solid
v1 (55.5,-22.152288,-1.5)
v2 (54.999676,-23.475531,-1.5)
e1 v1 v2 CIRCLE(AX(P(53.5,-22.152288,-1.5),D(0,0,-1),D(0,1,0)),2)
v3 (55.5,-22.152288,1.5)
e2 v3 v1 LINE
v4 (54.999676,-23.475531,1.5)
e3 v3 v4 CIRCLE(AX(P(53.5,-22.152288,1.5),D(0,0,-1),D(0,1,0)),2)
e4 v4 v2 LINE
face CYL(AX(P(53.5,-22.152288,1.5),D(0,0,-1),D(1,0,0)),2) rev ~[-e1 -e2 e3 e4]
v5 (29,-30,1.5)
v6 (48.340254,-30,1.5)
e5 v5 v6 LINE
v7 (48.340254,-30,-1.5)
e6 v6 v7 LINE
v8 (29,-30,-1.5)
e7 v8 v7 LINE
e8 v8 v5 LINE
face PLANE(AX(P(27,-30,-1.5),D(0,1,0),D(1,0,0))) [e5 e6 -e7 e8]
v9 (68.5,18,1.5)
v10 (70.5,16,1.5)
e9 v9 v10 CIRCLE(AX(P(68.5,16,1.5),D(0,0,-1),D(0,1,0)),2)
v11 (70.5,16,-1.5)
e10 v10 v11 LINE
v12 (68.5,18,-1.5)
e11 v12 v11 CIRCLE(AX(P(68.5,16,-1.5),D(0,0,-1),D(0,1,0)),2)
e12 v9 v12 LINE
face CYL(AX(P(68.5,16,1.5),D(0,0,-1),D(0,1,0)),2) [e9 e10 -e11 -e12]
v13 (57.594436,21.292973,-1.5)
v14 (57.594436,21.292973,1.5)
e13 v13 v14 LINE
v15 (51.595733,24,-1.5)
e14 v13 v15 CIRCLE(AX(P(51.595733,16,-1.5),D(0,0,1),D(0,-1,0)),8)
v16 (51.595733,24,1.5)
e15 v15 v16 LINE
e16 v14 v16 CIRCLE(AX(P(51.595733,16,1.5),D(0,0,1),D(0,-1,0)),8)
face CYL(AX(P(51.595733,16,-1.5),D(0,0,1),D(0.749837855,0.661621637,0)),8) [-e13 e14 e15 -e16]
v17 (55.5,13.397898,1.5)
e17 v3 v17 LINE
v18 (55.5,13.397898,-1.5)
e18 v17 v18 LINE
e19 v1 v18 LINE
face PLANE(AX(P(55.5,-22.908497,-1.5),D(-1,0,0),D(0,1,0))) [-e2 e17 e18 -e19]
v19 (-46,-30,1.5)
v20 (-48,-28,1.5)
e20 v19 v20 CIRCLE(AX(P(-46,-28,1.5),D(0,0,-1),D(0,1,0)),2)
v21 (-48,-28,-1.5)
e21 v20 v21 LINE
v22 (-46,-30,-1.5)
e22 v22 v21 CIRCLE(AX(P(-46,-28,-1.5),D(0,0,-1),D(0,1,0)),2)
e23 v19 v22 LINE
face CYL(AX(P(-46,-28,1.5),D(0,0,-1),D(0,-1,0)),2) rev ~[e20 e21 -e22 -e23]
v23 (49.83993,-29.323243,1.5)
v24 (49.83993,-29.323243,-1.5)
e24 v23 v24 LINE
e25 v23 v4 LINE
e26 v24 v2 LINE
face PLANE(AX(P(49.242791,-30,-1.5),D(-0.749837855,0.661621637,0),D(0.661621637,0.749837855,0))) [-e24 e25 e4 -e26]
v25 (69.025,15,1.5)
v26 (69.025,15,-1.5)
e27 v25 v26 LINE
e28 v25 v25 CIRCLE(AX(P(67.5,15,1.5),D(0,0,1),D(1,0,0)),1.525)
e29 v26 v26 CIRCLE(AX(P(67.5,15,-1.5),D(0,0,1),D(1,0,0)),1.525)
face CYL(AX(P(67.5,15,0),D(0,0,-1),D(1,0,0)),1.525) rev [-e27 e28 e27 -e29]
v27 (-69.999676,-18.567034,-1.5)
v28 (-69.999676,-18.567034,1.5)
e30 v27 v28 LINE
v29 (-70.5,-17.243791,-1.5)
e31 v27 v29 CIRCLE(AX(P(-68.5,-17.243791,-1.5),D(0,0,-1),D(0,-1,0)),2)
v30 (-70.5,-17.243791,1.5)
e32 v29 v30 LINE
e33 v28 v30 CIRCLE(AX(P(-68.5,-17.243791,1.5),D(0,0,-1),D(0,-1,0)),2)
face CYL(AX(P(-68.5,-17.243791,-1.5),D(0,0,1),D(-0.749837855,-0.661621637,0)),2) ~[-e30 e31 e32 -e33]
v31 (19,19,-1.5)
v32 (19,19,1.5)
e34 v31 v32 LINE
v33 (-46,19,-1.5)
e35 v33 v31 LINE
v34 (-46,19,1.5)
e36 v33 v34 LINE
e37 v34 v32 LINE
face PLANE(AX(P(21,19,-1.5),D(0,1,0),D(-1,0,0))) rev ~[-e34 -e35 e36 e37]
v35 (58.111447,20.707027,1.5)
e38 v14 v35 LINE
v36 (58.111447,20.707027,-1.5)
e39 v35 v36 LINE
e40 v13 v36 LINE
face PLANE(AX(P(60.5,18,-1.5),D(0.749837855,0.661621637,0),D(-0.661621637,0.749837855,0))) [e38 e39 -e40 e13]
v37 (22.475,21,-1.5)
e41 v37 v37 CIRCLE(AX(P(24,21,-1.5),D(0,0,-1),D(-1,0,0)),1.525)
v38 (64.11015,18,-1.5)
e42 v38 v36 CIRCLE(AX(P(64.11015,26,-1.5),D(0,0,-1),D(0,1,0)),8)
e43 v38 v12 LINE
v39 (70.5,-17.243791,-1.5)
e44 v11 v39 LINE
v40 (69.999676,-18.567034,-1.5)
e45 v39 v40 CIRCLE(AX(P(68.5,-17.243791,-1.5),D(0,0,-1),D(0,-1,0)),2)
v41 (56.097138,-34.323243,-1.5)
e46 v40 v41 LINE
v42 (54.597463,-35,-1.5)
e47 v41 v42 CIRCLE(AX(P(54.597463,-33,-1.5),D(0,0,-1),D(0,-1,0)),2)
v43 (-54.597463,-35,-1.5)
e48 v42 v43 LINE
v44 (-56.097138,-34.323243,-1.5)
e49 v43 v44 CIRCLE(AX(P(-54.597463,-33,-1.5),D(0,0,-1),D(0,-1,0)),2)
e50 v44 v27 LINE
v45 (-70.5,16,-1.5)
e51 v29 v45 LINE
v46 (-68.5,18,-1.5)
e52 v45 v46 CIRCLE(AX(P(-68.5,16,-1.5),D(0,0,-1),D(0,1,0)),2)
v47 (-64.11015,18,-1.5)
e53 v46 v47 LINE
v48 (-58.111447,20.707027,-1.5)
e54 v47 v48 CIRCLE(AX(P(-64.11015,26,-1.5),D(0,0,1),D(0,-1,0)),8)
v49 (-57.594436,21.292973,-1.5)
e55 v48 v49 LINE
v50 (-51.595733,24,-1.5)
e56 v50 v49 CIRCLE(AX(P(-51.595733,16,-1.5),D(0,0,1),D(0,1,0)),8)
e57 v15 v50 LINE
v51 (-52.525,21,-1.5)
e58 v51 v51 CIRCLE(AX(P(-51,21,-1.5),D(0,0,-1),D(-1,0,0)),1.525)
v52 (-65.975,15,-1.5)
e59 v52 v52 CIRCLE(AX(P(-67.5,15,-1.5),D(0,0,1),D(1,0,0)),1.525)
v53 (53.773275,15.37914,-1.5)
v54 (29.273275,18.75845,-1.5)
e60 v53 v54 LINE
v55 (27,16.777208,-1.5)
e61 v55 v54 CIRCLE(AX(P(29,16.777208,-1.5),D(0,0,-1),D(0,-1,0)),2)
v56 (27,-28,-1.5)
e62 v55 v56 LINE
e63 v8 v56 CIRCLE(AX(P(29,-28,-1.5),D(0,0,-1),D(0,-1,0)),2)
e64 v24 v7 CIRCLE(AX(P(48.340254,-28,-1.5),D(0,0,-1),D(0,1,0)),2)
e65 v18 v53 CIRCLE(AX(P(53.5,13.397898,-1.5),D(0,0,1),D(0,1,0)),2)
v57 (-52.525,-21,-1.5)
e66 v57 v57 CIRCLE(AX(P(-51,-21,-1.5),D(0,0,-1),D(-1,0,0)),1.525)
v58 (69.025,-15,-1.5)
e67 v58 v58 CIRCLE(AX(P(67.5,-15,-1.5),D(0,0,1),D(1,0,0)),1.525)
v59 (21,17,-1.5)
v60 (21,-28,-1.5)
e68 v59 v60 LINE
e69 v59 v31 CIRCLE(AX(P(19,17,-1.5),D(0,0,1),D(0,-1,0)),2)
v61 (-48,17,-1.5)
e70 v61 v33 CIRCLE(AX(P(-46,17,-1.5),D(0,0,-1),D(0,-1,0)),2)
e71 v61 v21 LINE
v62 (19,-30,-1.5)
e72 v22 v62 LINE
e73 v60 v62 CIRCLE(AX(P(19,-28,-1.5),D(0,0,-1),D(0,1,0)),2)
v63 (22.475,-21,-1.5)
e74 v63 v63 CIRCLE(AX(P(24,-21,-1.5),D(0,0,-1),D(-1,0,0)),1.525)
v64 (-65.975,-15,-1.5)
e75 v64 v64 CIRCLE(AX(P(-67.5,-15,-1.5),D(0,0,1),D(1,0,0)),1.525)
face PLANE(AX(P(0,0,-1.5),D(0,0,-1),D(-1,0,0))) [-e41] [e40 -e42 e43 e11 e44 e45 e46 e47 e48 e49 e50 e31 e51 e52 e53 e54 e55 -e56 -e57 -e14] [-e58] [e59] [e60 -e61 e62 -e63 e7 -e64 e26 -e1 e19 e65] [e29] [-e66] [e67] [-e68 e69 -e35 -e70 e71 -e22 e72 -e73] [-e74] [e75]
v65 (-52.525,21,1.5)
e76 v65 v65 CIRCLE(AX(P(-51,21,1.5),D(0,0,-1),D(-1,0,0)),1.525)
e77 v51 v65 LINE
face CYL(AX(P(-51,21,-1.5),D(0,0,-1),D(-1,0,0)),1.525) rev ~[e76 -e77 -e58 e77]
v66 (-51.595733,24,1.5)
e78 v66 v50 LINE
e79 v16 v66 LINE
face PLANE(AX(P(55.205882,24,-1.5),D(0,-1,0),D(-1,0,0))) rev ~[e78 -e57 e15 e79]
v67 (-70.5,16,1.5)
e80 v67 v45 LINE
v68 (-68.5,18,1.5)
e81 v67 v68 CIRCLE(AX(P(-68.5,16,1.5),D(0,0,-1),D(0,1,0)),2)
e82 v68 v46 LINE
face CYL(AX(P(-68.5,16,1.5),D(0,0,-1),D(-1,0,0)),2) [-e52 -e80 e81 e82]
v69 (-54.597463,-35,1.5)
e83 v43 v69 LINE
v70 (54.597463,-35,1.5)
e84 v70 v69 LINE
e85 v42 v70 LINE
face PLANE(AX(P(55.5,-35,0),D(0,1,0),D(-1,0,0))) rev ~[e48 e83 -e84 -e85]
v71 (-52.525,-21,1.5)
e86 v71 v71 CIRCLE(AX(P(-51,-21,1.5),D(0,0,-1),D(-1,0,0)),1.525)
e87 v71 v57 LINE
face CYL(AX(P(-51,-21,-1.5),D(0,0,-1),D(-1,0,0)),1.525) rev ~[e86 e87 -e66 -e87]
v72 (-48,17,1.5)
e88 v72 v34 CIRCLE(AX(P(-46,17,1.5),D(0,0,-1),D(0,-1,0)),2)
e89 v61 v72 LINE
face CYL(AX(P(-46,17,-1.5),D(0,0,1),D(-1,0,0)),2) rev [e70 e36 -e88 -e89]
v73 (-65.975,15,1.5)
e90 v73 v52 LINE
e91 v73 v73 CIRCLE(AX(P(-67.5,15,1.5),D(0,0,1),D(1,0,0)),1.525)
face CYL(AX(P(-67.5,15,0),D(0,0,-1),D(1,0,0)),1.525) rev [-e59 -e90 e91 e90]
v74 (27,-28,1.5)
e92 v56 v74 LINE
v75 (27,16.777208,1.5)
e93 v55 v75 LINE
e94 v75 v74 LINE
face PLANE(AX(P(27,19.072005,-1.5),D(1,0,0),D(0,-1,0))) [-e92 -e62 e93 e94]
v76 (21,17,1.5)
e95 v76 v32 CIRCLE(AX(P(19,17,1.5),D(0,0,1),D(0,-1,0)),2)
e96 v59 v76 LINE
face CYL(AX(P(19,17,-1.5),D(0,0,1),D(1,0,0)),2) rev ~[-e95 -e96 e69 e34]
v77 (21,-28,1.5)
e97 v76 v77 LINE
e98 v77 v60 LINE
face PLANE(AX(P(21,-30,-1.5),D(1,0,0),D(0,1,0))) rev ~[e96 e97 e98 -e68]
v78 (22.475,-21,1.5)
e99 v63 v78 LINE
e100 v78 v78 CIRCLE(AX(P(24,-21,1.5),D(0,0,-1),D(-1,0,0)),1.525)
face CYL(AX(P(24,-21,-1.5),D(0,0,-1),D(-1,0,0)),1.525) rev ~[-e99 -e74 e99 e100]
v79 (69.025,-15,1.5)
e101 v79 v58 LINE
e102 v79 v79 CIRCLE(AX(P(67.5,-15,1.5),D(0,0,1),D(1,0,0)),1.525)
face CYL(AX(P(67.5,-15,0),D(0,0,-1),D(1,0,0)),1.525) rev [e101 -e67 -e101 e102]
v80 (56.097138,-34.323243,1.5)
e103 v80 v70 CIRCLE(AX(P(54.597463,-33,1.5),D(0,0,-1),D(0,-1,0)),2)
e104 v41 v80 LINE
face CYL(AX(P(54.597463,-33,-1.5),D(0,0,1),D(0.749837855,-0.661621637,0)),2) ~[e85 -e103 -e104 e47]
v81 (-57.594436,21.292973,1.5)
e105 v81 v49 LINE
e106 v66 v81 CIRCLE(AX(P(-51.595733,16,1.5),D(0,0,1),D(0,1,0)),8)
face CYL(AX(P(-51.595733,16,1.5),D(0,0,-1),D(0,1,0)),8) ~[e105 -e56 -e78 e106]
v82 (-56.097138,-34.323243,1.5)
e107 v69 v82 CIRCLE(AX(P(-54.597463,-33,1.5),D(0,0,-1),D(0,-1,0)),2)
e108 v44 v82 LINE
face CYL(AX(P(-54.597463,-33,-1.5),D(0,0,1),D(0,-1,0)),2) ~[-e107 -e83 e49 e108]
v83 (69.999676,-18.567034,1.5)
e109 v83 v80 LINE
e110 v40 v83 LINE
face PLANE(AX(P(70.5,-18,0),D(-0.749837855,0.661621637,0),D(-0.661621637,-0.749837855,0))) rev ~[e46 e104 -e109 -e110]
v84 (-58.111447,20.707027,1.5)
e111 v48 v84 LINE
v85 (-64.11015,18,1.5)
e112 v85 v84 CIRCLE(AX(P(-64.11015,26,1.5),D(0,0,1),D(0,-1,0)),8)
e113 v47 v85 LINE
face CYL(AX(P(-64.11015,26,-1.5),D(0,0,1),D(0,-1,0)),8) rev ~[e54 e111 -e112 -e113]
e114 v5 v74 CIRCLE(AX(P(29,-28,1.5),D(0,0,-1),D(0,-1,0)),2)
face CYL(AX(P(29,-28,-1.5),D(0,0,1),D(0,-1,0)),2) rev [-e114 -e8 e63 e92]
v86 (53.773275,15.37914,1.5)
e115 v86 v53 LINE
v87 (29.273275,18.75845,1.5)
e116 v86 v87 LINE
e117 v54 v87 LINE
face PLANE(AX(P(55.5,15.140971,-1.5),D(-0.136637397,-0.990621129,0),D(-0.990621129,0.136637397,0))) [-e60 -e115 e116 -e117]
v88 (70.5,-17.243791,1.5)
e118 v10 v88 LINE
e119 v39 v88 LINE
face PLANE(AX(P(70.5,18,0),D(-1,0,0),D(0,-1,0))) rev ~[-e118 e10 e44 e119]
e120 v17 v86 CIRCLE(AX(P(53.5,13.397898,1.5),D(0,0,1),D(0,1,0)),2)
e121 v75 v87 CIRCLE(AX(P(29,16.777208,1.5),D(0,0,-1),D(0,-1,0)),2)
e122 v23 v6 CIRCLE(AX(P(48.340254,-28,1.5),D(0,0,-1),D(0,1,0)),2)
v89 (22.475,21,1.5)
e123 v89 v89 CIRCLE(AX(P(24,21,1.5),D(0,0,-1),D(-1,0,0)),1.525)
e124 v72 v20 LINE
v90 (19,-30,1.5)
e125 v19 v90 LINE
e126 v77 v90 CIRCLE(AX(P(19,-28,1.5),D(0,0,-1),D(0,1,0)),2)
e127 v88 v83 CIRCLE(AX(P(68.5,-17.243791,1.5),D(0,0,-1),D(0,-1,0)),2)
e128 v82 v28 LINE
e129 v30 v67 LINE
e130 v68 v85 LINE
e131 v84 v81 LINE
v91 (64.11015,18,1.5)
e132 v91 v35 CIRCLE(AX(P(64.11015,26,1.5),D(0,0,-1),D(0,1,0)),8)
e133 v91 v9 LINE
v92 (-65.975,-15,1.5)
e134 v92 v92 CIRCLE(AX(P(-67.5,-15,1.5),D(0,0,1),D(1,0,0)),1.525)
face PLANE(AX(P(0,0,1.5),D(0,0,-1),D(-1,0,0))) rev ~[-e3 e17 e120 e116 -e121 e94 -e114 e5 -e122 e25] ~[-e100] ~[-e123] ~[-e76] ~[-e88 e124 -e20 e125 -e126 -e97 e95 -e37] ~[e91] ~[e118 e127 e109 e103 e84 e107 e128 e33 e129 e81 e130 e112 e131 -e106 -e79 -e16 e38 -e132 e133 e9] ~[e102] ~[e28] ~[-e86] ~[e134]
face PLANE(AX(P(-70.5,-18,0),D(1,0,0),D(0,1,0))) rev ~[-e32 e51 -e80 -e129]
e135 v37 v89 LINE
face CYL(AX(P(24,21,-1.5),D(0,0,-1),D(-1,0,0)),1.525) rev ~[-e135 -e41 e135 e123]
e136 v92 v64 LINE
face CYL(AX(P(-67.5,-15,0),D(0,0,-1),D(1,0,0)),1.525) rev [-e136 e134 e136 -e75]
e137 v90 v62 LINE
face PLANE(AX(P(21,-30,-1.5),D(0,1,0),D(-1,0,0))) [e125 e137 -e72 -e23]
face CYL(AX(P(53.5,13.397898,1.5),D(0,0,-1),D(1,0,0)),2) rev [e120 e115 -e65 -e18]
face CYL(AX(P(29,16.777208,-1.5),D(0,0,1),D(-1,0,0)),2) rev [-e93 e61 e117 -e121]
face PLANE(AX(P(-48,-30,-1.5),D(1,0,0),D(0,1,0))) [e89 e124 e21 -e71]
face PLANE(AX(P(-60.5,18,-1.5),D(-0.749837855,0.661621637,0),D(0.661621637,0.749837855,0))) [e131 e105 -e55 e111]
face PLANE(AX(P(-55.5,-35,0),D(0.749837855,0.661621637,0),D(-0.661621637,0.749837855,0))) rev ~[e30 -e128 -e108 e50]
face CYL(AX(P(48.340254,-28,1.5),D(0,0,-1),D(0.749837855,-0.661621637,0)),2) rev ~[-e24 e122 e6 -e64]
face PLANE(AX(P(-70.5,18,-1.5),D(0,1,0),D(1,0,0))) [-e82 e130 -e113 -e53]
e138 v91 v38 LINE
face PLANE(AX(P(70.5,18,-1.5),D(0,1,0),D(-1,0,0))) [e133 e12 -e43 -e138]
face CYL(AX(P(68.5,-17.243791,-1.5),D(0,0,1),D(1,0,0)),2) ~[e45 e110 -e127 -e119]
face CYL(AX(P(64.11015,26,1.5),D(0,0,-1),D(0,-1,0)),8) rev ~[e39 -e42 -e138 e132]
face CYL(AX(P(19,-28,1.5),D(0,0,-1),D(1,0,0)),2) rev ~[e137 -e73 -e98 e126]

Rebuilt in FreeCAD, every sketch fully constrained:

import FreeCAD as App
import Part
import Sketcher
from FreeCAD import Vector
Q = App.Units.Quantity


def edges_at(feature, points):
    """Names of the edges that pass closest to the given points."""
    edges = feature.Shape.Edges
    near = lambda p: min(range(len(edges)), key=lambda i: edges[i].distToShape(Part.Vertex(*p))[0])
    return sorted({f"Edge{near(p) + 1}" for p in points})


def add_polygon(sketch, points):
    """Adds a closed chain of lines whose ends are joined by coincident constraints."""
    first, n = sketch.GeometryCount, len(points)
    for a, b in zip(points, points[1:] + points[:1]):
        sketch.addGeometry(Part.LineSegment(App.Vector(*a, 0), App.Vector(*b, 0)), False)
    for i in range(n):
        sketch.addConstraint(Sketcher.Constraint("Coincident", first + i, 2, first + (i + 1) % n, 1))

doc = App.newDocument("Part")
body = doc.addObject("PartDesign::Body", "Body")

sketch1 = doc.addObject("Sketcher::SketchObject", "Sketch")
body.addObject(sketch1)
sketch1.AttachmentSupport = (doc.XY_Plane, [""])
sketch1.MapMode = "FlatFace"
add_polygon(sketch1, [(-70.5, 18), (-70.5, -18), (-55.5, -35), (55.5, -35), (70.5, -18), (70.5, 18), (55.5, 35), (-55.5, 35)])
sketch1.addGeometry(Part.Circle(Vector(67.5, -15, 0), Vector(0, 0, 1), 1.5), False)
sketch1.addGeometry(Part.Circle(Vector(-67.5, -15, 0), Vector(0, 0, 1), 1.5), False)
sketch1.addGeometry(Part.Circle(Vector(67.5, 15, 0), Vector(0, 0, 1), 1.5), False)
sketch1.addGeometry(Part.Circle(Vector(-67.5, 15, 0), Vector(0, 0, 1), 1.5), False)
sketch1.addConstraint([
    Sketcher.Constraint("Vertical", 0),
    Sketcher.Constraint("Horizontal", 2),
    Sketcher.Constraint("Vertical", 4),
    Sketcher.Constraint("Horizontal", 6),
    Sketcher.Constraint("Equal", 8, 9),
    Sketcher.Constraint("Equal", 9, 10),
    Sketcher.Constraint("Equal", 10, 11),
    Sketcher.Constraint("Symmetric", 9, 3, 10, 3, -1, 1),
    Sketcher.Constraint("Symmetric", 8, 3, 11, 3, -1, 1),
    Sketcher.Constraint("Symmetric", 0, 2, 4, 2, -1, 1),
    Sketcher.Constraint("Symmetric", 1, 2, 5, 2, -1, 1),
    Sketcher.Constraint("Symmetric", 8, 3, 9, 3, -2),
    Sketcher.Constraint("Parallel", 3, 7),
    Sketcher.Constraint("Horizontal", 0, 2, 3, 2),
    Sketcher.Constraint("Horizontal", 4, 2, 7, 2),
    Sketcher.Constraint("Vertical", 2, 2, 5, 2),
    Sketcher.Constraint("Diameter", 8, Q("3.05 mm")),
    Sketcher.Constraint("DistanceX", 2, 1, 2, 2, Q("111 mm")),
    Sketcher.Constraint("DistanceY", 0, 2, 0, 1, Q("36 mm")),
    Sketcher.Constraint("DistanceY", 8, 3, -1, 1, Q("15 mm")),
    Sketcher.Constraint("DistanceY", 1, 2, -1, 1, Q("35 mm")),
    Sketcher.Constraint("DistanceX", 9, 3, 8, 3, Q("135 mm")),
    Sketcher.Constraint("DistanceX", 0, 2, 9, 3, Q("3 mm")),
])
pad1 = doc.addObject("PartDesign::Pad", "Pad")
body.addObject(pad1)
pad1.Profile = sketch1
pad1.Length = 3
pad1.Midplane = True

sketch2 = doc.addObject("Sketcher::SketchObject", "Sketch001")
body.addObject(sketch2)
sketch2.AttachmentSupport = (doc.XY_Plane, [""])
sketch2.MapMode = "FlatFace"
sketch2.AttachmentOffset = App.Placement(Vector(0, 0, -1.5), App.Rotation())
sketch2.addGeometry([
    Part.Circle(Vector(24, 21, 0), Vector(0, 0, 1), 1.5),
    Part.Circle(Vector(24, -21, 0), Vector(0, 0, 1), 1.5),
    Part.Circle(Vector(-51, 21, 0), Vector(0, 0, 1), 1.5),
    Part.Circle(Vector(-51, -21, 0), Vector(0, 0, 1), 1.5),
], False)
sketch2.addConstraint([
    Sketcher.Constraint("Equal", 0, 1),
    Sketcher.Constraint("Equal", 1, 2),
    Sketcher.Constraint("Equal", 2, 3),
    Sketcher.Constraint("Symmetric", 0, 3, 1, 3, -1),
    Sketcher.Constraint("Symmetric", 2, 3, 3, 3, -1),
    Sketcher.Constraint("Horizontal", 0, 3, 2, 3),
    Sketcher.Constraint("Diameter", 0, Q("3.05 mm")),
    Sketcher.Constraint("DistanceX", -1, 1, 0, 3, Q("24 mm")),
    Sketcher.Constraint("DistanceY", -1, 1, 0, 3, Q("21 mm")),
    Sketcher.Constraint("DistanceX", 2, 3, -1, 1, Q("51 mm")),
])
pocket1 = doc.addObject("PartDesign::Pocket", "Pocket")
body.addObject(pocket1)
pocket1.Profile = sketch2
pocket1.Length = 42
pocket1.Midplane = True

sketch3 = doc.addObject("Sketcher::SketchObject", "Sketch002")
body.addObject(sketch3)
sketch3.AttachmentSupport = (doc.XY_Plane, [""])
sketch3.MapMode = "FlatFace"
sketch3.AttachmentOffset = App.Placement(Vector(0, 0, -1.5), App.Rotation())
add_polygon(sketch3, [(70, 18), (60, 18), (46, 35), (56, 35)])
add_polygon(sketch3, [(-70, 18), (-56, 35), (-46, 35), (-60, 18)])
sketch3.addConstraint([
    Sketcher.Constraint("Horizontal", 0),
    Sketcher.Constraint("Horizontal", 2),
    Sketcher.Constraint("Horizontal", 5),
    Sketcher.Constraint("Horizontal", 7),
    Sketcher.Constraint("Symmetric", 2, 2, 4, 2, -2),
    Sketcher.Constraint("Symmetric", 0, 2, 6, 2, -2),
    Sketcher.Constraint("Parallel", 1, 3),
    Sketcher.Constraint("Parallel", 4, 6),
    Sketcher.Constraint("Equal", 2, 5),
    Sketcher.Constraint("DistanceX", 0, 2, 0, 1, Q("10 mm")),
    Sketcher.Constraint("DistanceY", -1, 1, 0, 2, Q("18 mm")),
    Sketcher.Constraint("DistanceY", -1, 1, 1, 2, Q("35 mm")),
    Sketcher.Constraint("DistanceX", 1, 2, 0, 2, Q("15 mm")),
    Sketcher.Constraint("DistanceX", 4, 2, 1, 2, Q("101 mm")),
])
pocket2 = doc.addObject("PartDesign::Pocket", "Pocket001")
body.addObject(pocket2)
pocket2.Profile = sketch3
pocket2.Length = 22
pocket2.Midplane = True

sketch4 = doc.addObject("Sketcher::SketchObject", "Sketch003")
body.addObject(sketch4)
sketch4.AttachmentSupport = (doc.XY_Plane, [""])
sketch4.MapMode = "FlatFace"
sketch4.AttachmentOffset = App.Placement(Vector(0, 0, -1.5), App.Rotation())
add_polygon(sketch4, [(55, 24), (-55, 24), (-46, 35), (46, 35)])
sketch4.addConstraint([
    Sketcher.Constraint("Horizontal", 0),
    Sketcher.Constraint("Horizontal", 2),
    Sketcher.Constraint("Equal", 1, 3),
    Sketcher.Constraint("DistanceX", 2, 1, 2, 2, Q("91 mm")),
    Sketcher.Constraint("DistanceY", -1, 1, 0, 2, Q("24 mm")),
    Sketcher.Constraint("DistanceY", -1, 1, 1, 2, Q("35 mm")),
    Sketcher.Constraint("DistanceX", 1, 2, -1, 1, Q("45.5 mm")),
    Sketcher.Constraint("Distance", 1, Q("14.669838 mm")),
])
pocket3 = doc.addObject("PartDesign::Pocket", "Pocket002")
body.addObject(pocket3)
pocket3.Profile = sketch4
pocket3.Length = 22
pocket3.Midplane = True
doc.recompute()

fillet = doc.addObject("PartDesign::Fillet", "Fillet")
body.addObject(fillet)
fillet.Base = (pocket3, edges_at(pocket3, [
    (55.206, 24, 0),
    (-55.206, 24, 0),
    (60.5, 18, 0),
    (-60.5, 18, 0),
]))
fillet.Radius = 8

sketch5 = doc.addObject("Sketcher::SketchObject", "Sketch004")
body.addObject(sketch5)
sketch5.AttachmentSupport = (doc.XY_Plane, [""])
sketch5.MapMode = "FlatFace"
sketch5.AttachmentOffset = App.Placement(Vector(0, 0, -1.5), App.Rotation())
add_polygon(sketch5, [(21, 19), (21, -30), (-48, -30), (-48, 19)])
add_polygon(sketch5, [(27, 19), (56, 15), (56, -23), (49, -30), (27, -30)])
sketch5.addConstraint([
    Sketcher.Constraint("Vertical", 0),
    Sketcher.Constraint("Horizontal", 1),
    Sketcher.Constraint("Vertical", 2),
    Sketcher.Constraint("Horizontal", 3),
    Sketcher.Constraint("Vertical", 5),
    Sketcher.Constraint("Horizontal", 7),
    Sketcher.Constraint("Vertical", 8),
    Sketcher.Constraint("Horizontal", 1, 2, 6, 2),
    Sketcher.Constraint("DistanceX", 1, 2, 1, 1, Q("69 mm")),
    Sketcher.Constraint("DistanceY", 0, 2, 0, 1, Q("49 mm")),
    Sketcher.Constraint("DistanceX", -1, 1, 0, 2, Q("21 mm")),
    Sketcher.Constraint("DistanceY", 0, 2, -1, 1, Q("30 mm")),
    Sketcher.Constraint("DistanceX", -1, 1, 7, 2, Q("27 mm")),
    Sketcher.Constraint("DistanceX", -1, 1, 4, 2, Q("55.5 mm")),
    Sketcher.Constraint("DistanceX", 7, 2, 7, 1, Q("22.242791 mm")),
    Sketcher.Constraint("Distance", 4, Q("28.769829 mm")),
    Sketcher.Constraint("Distance", 6, Q("9.457382 mm")),
    Sketcher.Constraint("DistanceY", 5, 2, 5, 1, Q("38.049468 mm")),
])
pocket4 = doc.addObject("PartDesign::Pocket", "Pocket003")
body.addObject(pocket4)
pocket4.Profile = sketch5
pocket4.Length = 22
pocket4.Midplane = True
doc.recompute()

fillet2 = doc.addObject("PartDesign::Fillet", "Fillet001")
body.addObject(fillet2)
fillet2.Base = (pocket4, edges_at(pocket4, [
    (-48, 19, 0),
    (-48, -30, 0),
    (21, -30, 0),
    (21, 19, 0),
    (55.5, -22.908, 0),
    (55.5, 15.141, 0),
    (27, 19.072, 0),
    (27, -30, 0),
    (49.243, -30, 0),
]))
fillet2.Radius = 2
doc.recompute()

fillet3 = doc.addObject("PartDesign::Fillet", "Fillet002")
body.addObject(fillet3)
fillet3.Base = (fillet2, edges_at(fillet2, [
    (70.5, 18, 0),
    (70.5, -18, 0),
    (55.5, -35, 0),
    (-55.5, -35, 0),
    (-70.5, -18, 0),
    (-70.5, 18, 0),
]))
fillet3.Radius = 2

doc.recompute()
